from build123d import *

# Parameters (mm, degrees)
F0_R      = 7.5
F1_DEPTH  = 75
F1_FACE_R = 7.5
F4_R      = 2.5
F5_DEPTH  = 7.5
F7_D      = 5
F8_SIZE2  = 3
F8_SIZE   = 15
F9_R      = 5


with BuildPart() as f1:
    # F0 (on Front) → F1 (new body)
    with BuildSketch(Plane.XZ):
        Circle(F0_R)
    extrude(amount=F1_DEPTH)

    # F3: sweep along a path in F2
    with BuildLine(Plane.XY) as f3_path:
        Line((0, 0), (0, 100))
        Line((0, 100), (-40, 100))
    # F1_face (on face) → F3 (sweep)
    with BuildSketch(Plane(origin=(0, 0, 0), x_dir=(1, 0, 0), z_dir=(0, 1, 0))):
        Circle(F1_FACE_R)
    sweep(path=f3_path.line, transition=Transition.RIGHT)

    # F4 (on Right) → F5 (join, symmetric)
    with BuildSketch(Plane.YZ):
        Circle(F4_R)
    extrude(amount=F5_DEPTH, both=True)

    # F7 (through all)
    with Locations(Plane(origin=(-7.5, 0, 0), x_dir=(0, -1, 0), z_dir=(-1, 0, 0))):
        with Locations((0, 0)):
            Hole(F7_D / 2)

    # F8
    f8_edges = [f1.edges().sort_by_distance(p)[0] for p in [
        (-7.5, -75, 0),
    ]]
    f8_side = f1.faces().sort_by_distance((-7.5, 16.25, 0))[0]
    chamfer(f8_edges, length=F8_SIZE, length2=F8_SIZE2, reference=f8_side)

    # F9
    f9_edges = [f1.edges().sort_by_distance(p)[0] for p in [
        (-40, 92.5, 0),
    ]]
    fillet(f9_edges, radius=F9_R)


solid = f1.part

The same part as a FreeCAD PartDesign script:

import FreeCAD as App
import Part
import Sketcher
from FreeCAD import Vector


def edges_at(feature, points):
    """Names of the edges that pass closest to the given points."""
    edges = feature.Shape.Edges
    near = lambda p: min(range(len(edges)), key=lambda i: edges[i].distToShape(Part.Vertex(*p))[0])
    return sorted({f"Edge{near(p) + 1}" for p in points})

doc = App.newDocument("Part")
body = doc.addObject("PartDesign::Body", "Body")

# Sketch on XZ plane
sketch1 = body.newObject("Sketcher::SketchObject", "Sketch")
sketch1.AttachmentSupport = (doc.getObject("XZ_Plane"), [""])
sketch1.MapMode = "FlatFace"
sketch1.addGeometry(Part.Circle(Vector(0, 0, 0), Vector(0, 0, 1), 8), False)
sketch1.addConstraint([
    Sketcher.Constraint("Coincident", 0, 3, -1, 1),
    Sketcher.Constraint("Diameter", 0, 15.0),
])
pad1 = body.newObject("PartDesign::Pad", "Pad")
pad1.Profile = sketch1
pad1.Length = 75

# Sketch on XZ plane
sketch2 = body.newObject("Sketcher::SketchObject", "Sketch001")
sketch2.AttachmentSupport = (doc.getObject("XZ_Plane"), [""])
sketch2.MapMode = "FlatFace"
sketch2.addGeometry(Part.Circle(Vector(0, 0, 0), Vector(0, 0, 1), 8), False)
sketch2.addConstraint([
    Sketcher.Constraint("Coincident", 0, 3, -1, 1),
    Sketcher.Constraint("Diameter", 0, 15.0),
])

# Sketch on XY plane
sketch3 = body.newObject("Sketcher::SketchObject", "Sketch002")
sketch3.AttachmentSupport = (doc.getObject("XY_Plane"), [""])
sketch3.MapMode = "FlatFace"
sketch3.addGeometry([
    Part.LineSegment(Vector(0, 0, 0), Vector(0, 100, 0)),
    Part.LineSegment(Vector(0, 100, 0), Vector(-40, 100, 0)),
], False)
sketch3.addConstraint([
    Sketcher.Constraint("Coincident", 0, 2, 1, 1),
    Sketcher.Constraint("Vertical", 0),
    Sketcher.Constraint("Horizontal", 1),
    Sketcher.Constraint("Coincident", 0, 1, -1, 1),
    Sketcher.Constraint("DistanceX", 1, 2, 1, 1, 40.0),
    Sketcher.Constraint("DistanceY", 0, 1, 0, 2, 100.0),
])
doc.recompute()

additivepipe = body.newObject("PartDesign::AdditivePipe", "AdditivePipe")
additivepipe.Profile = sketch2
additivepipe.Spine = (sketch3, ["Edge1", "Edge2"])
additivepipe.Transition = "Right corner"

# Sketch on YZ plane
sketch4 = body.newObject("Sketcher::SketchObject", "Sketch003")
sketch4.AttachmentSupport = (doc.getObject("YZ_Plane"), [""])
sketch4.MapMode = "FlatFace"
sketch4.addGeometry(Part.Circle(Vector(0, 0, 0), Vector(0, 0, 1), 2.5), False)
sketch4.addConstraint([
    Sketcher.Constraint("Coincident", 0, 3, -1, 1),
    Sketcher.Constraint("Diameter", 0, 5.0),
])
pad2 = body.newObject("PartDesign::Pad", "Pad001")
pad2.Profile = sketch4
pad2.Length = 15
pad2.Midplane = True

# Sketch on YZ plane
sketch5 = body.newObject("Sketcher::SketchObject", "Sketch004")
sketch5.AttachmentSupport = (doc.getObject("YZ_Plane"), [""])
sketch5.MapMode = "FlatFace"
sketch5.AttachmentOffset = App.Placement(Vector(0, 0, -7.5), App.Rotation())
sketch5.addGeometry(Part.Circle(Vector(0, 0, 0), Vector(0, 0, 1), 2.5), False)
sketch5.addConstraint([
    Sketcher.Constraint("Coincident", 0, 3, -1, 1),
    Sketcher.Constraint("Diameter", 0, 5.0),
])
doc.recompute()
hole = body.newObject("PartDesign::Hole", "Hole")
hole.Profile = sketch5
hole.ThreadType = "None"
hole.Diameter = 5
hole.DepthType = "ThroughAll"
hole.Reversed = True
doc.recompute()

chamfer = body.newObject("PartDesign::Chamfer", "Chamfer")
chamfer.Base = (hole, edges_at(hole, [(-7.5, -75, 0)]))
chamfer.ChamferType = "Two distances"
chamfer.Size = 15
chamfer.Size2 = 3
doc.recompute()

fillet = body.newObject("PartDesign::Fillet", "Fillet")
fillet.Base = (chamfer, edges_at(chamfer, [(-40, 92.5, 0)]))
fillet.Radius = 5

doc.recompute()
